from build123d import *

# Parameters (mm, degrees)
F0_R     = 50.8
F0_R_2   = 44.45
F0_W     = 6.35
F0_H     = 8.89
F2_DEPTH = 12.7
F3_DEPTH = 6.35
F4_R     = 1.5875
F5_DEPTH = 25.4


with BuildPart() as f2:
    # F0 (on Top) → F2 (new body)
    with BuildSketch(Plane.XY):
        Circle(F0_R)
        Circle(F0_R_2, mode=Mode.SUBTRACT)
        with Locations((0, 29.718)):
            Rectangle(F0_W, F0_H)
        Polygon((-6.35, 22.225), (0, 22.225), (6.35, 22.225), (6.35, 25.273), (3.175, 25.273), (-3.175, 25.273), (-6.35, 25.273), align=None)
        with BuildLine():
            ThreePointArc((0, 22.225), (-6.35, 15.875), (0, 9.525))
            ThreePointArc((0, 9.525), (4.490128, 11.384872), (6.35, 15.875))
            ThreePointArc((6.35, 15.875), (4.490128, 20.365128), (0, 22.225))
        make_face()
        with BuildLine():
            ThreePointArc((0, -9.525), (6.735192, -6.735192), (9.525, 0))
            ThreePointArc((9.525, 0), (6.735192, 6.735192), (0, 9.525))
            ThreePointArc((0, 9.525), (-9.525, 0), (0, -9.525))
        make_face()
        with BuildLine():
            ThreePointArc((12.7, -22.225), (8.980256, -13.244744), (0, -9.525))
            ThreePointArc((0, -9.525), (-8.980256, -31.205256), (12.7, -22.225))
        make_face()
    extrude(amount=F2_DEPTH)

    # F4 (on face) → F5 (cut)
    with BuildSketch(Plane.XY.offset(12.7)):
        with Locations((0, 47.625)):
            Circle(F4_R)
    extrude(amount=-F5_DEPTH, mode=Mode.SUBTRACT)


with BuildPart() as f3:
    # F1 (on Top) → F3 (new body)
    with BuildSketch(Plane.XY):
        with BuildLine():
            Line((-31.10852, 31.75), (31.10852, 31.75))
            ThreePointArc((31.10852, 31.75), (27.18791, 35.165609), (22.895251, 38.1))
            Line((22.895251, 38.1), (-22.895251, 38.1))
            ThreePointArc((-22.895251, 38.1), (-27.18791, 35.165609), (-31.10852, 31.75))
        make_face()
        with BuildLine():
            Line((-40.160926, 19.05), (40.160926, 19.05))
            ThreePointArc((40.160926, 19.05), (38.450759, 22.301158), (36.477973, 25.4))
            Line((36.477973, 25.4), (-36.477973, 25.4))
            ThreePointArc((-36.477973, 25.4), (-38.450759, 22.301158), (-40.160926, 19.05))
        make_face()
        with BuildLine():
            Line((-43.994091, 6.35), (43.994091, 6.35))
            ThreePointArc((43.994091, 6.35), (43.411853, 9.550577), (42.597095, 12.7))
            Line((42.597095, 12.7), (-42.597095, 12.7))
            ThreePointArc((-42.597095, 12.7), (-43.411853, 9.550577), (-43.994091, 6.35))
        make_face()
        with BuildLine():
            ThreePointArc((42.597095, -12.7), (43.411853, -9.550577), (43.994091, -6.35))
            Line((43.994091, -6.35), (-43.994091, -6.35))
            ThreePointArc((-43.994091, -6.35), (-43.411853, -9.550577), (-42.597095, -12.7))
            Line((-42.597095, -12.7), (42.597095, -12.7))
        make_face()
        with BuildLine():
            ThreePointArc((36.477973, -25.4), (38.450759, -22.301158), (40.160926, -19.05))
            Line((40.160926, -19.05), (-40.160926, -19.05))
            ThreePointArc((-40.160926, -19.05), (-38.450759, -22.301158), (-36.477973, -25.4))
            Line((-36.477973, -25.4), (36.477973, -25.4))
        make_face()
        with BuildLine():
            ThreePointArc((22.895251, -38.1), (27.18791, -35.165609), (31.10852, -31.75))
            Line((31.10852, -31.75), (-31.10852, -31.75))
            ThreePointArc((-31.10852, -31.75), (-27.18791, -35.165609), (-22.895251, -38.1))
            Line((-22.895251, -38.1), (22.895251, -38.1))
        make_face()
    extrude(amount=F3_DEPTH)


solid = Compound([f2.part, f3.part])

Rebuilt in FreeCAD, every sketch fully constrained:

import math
import FreeCAD as App
import Part
import Sketcher
from FreeCAD import Vector
Q = App.Units.Quantity


def add_polygon(sketch, points):
    """Adds a closed chain of lines whose ends are joined by coincident constraints."""
    first, n = sketch.GeometryCount, len(points)
    for a, b in zip(points, points[1:] + points[:1]):
        sketch.addGeometry(Part.LineSegment(App.Vector(*a, 0), App.Vector(*b, 0)), False)
    for i in range(n):
        sketch.addConstraint(Sketcher.Constraint("Coincident", first + i, 2, first + (i + 1) % n, 1))

doc = App.newDocument("Part")
body = doc.addObject("PartDesign::Body", "Body")
body.AllowCompound = True

sketch1 = body.newObject("Sketcher::SketchObject", "Sketch")
sketch1.AttachmentSupport = (doc.getObject("XY_Plane"), [""])
sketch1.MapMode = "FlatFace"
sketch1.addGeometry(Part.Circle(Vector(0, 0, 0), Vector(0, 0, 1), 50.8), False)
sketch1.addGeometry(Part.Circle(Vector(0, 0, 0), Vector(0, 0, 1), 44.45), False)
add_polygon(sketch1, [(-3.175, 34.163), (-3.175, 25.273), (-6.35, 25.273), (-6.35, 22.225), (0, 22.225), (6.35, 22.225), (6.35, 25.273), (3.175, 25.273), (3.175, 34.163)])
sketch1.addGeometry(Part.ArcOfCircle(Part.Circle(Vector(0, 15.875, 0), Vector(0, 0, 1), 6.35), math.radians(90), math.radians(270)), False)
sketch1.addGeometry(Part.ArcOfCircle(Part.Circle(Vector(0, 15.875, 0), Vector(0, 0, 1), 6.35), math.radians(-89.999998), math.radians(-0.000002)), False)
sketch1.addGeometry(Part.ArcOfCircle(Part.Circle(Vector(0, 15.875, 0), Vector(0, 0, 1), 6.35), math.radians(0.000002), math.radians(89.999998)), False)
sketch1.addGeometry(Part.ArcOfCircle(Part.Circle(Vector(0, 0, 0), Vector(0, 0, 1), 9.525), math.radians(-89.999998), math.radians(-0.000002)), False)
sketch1.addGeometry(Part.ArcOfCircle(Part.Circle(Vector(0, 0, 0), Vector(0, 0, 1), 9.525), math.radians(0.000002), math.radians(89.999998)), False)
sketch1.addGeometry(Part.ArcOfCircle(Part.Circle(Vector(0, 0, 0), Vector(0, 0, 1), 9.525), math.radians(90), math.radians(270)), False)
sketch1.addGeometry(Part.ArcOfCircle(Part.Circle(Vector(0, -22.225, 0), Vector(0, 0, 1), 12.7), math.radians(0.000002), math.radians(89.999998)), False)
sketch1.addGeometry(Part.ArcOfCircle(Part.Circle(Vector(0, -22.225, 0), Vector(0, 0, 1), 12.7), math.radians(90), math.radians(360)), False)
sketch1.addConstraint([
    Sketcher.Constraint("Tangent", 11, 2, 12, 1),
    Sketcher.Constraint("Tangent", 12, 2, 13, 1),
    Sketcher.Constraint("Tangent", 13, 2, 11, 1),
    Sketcher.Constraint("Tangent", 14, 2, 15, 1),
    Sketcher.Constraint("Tangent", 15, 2, 16, 1),
    Sketcher.Constraint("Tangent", 16, 2, 14, 1),
    Sketcher.Constraint("Tangent", 17, 1, 18, 2),
    Sketcher.Constraint("Coincident", 18, 1, 17, 2),
    Sketcher.Constraint("Vertical", 2),
    Sketcher.Constraint("Horizontal", 3),
    Sketcher.Constraint("Vertical", 4),
    Sketcher.Constraint("Horizontal", 5),
    Sketcher.Constraint("Horizontal", 6),
    Sketcher.Constraint("Vertical", 7),
    Sketcher.Constraint("Horizontal", 8),
    Sketcher.Constraint("Vertical", 9),
    Sketcher.Constraint("Horizontal", 10),
    Sketcher.Constraint("Coincident", 0, 3, -1, 1),
    Sketcher.Constraint("Coincident", 1, 3, -1, 1),
    Sketcher.Constraint("Coincident", 14, 3, -1, 1),
    Sketcher.Constraint("Coincident", 13, 2, 5, 2),
    Sketcher.Constraint("Coincident", 15, 2, 11, 2),
    Sketcher.Constraint("Coincident", 18, 1, 16, 2),
    Sketcher.Constraint("Symmetric", 3, 2, 7, 2, -2),
    Sketcher.Constraint("PointOnObject", 11, 3, -2),
    Sketcher.Constraint("PointOnObject", 17, 3, -2),
    Sketcher.Constraint("PointOnObject", 5, 2, -2),
    Sketcher.Constraint("PointOnObject", 11, 2, -2),
    Sketcher.Constraint("PointOnObject", 14, 2, -1),
    Sketcher.Constraint("PointOnObject", 16, 2, -2),
    Sketcher.Constraint("Horizontal", 13, 3, 12, 2),
    Sketcher.Constraint("Horizontal", 18, 3, 17, 1),
    Sketcher.Constraint("Vertical", 7, 2, 12, 2),
    Sketcher.Constraint("Equal", 3, 8),
    Sketcher.Constraint("Equal", 6, 10),
    Sketcher.Constraint("Diameter", 0, Q("4 in")),
    Sketcher.Constraint("Diameter", 1, Q("3.5 in")),
    Sketcher.Constraint("Radius", 17, Q("0.5 in")),
    Sketcher.Constraint("Radius", 11, Q("0.25 in")),
    Sketcher.Constraint("Radius", 14, Q("0.375 in")),
    Sketcher.Constraint("DistanceY", 2, 2, 2, 1, Q("0.35 in")),
    Sketcher.Constraint("DistanceY", 4, 2, 4, 1, Q("0.12 in")),
])
pad1 = body.newObject("PartDesign::Pad", "Pad")
pad1.Profile = sketch1
pad1.Length = Q("0.5 in")

sketch2 = body.newObject("Sketcher::SketchObject", "Sketch001")
sketch2.AttachmentSupport = (doc.getObject("XY_Plane"), [""])
sketch2.MapMode = "FlatFace"
sketch2.AttachmentOffset = App.Placement(Vector(0, 0, 0.5 * 25.4), App.Rotation())
sketch2.addGeometry(Part.Circle(Vector(0, 47.625, 0), Vector(0, 0, 1), 1.5875), False)
sketch2.addConstraint([
    Sketcher.Constraint("PointOnObject", 0, 3, -2),
    Sketcher.Constraint("Diameter", 0, Q("0.125 in")),
    Sketcher.Constraint("DistanceY", -1, 1, 0, 3, Q("1.875 in")),
])
pocket1 = body.newObject("PartDesign::Pocket", "Pocket")
pocket1.Profile = sketch2
pocket1.Length = Q("1 in")
body2 = doc.addObject("PartDesign::Body", "Body001")
body2.AllowCompound = True

sketch3 = body2.newObject("Sketcher::SketchObject", "Sketch002")
sketch3.AttachmentSupport = (doc.getObject("XY_Plane001"), [""])
sketch3.MapMode = "FlatFace"
sketch3.addGeometry([
    Part.LineSegment(Vector(-31.10852, 31.75, 0), Vector(31.10852, 31.75, 0)),
    Part.ArcOfCircle(Part.Circle(Vector(-0.000011, -0.000014, 0), Vector(0, 0, 1), 44.450018), math.radians(45.584694), math.radians(58.997278)),
    Part.LineSegment(Vector(22.895251, 38.1, 0), Vector(-22.895251, 38.1, 0)),
    Part.ArcOfCircle(Part.Circle(Vector(0.000011, -0.000014, 0), Vector(0, 0, 1), 44.450018), math.radians(121.002722), math.radians(134.415306)),
    Part.LineSegment(Vector(-40.160926, 19.05, 0), Vector(40.160926, 19.05, 0)),
    Part.ArcOfCircle(Part.Circle(Vector(0.000056, 0.000035, 0), Vector(0, 0, 1), 44.449934), math.radians(25.376923), math.radians(34.849908)),
    Part.LineSegment(Vector(36.477973, 25.4, 0), Vector(-36.477973, 25.4, 0)),
    Part.ArcOfCircle(Part.Circle(Vector(-0.000056, 0.000035, 0), Vector(0, 0, 1), 44.449934), math.radians(145.150092), math.radians(154.623077)),
    Part.LineSegment(Vector(-43.994091, 6.35, 0), Vector(43.994091, 6.35, 0)),
    Part.ArcOfCircle(Part.Circle(Vector(-0.000084, -0.000022, 0), Vector(0, 0, 1), 44.450087), math.radians(8.213223), math.radians(16.601545)),
    Part.LineSegment(Vector(42.597095, 12.7, 0), Vector(-42.597095, 12.7, 0)),
    Part.ArcOfCircle(Part.Circle(Vector(0.000084, -0.000022, 0), Vector(0, 0, 1), 44.450087), math.radians(163.398455), math.radians(171.786777)),
    Part.ArcOfCircle(Part.Circle(Vector(-0.000084, 0.000022, 0), Vector(0, 0, 1), 44.450087), math.radians(-16.601545), math.radians(-8.213223)),
    Part.LineSegment(Vector(43.994091, -6.35, 0), Vector(-43.994091, -6.35, 0)),
    Part.ArcOfCircle(Part.Circle(Vector(0.000084, 0.000022, 0), Vector(0, 0, 1), 44.450087), math.radians(-171.786777), math.radians(-163.398455)),
    Part.LineSegment(Vector(-42.597095, -12.7, 0), Vector(42.597095, -12.7, 0)),
    Part.ArcOfCircle(Part.Circle(Vector(0.000056, -0.000035, 0), Vector(0, 0, 1), 44.449934), math.radians(-34.849908), math.radians(-25.376923)),
    Part.LineSegment(Vector(40.160926, -19.05, 0), Vector(-40.160926, -19.05, 0)),
    Part.ArcOfCircle(Part.Circle(Vector(-0.000056, -0.000035, 0), Vector(0, 0, 1), 44.449934), math.radians(-154.623077), math.radians(-145.150092)),
    Part.LineSegment(Vector(-36.477973, -25.4, 0), Vector(36.477973, -25.4, 0)),
    Part.ArcOfCircle(Part.Circle(Vector(-0.000011, 0.000014, 0), Vector(0, 0, 1), 44.450018), math.radians(-58.997278), math.radians(-45.584694)),
    Part.LineSegment(Vector(31.10852, -31.75, 0), Vector(-31.10852, -31.75, 0)),
    Part.ArcOfCircle(Part.Circle(Vector(0.000011, 0.000014, 0), Vector(0, 0, 1), 44.450018), math.radians(-134.415306), math.radians(-121.002722)),
    Part.LineSegment(Vector(-22.895251, -38.1, 0), Vector(22.895251, -38.1, 0)),
], False)
sketch3.addConstraint([
    Sketcher.Constraint("Coincident", 0, 2, 1, 1),
    Sketcher.Constraint("Coincident", 1, 2, 2, 1),
    Sketcher.Constraint("Coincident", 2, 2, 3, 1),
    Sketcher.Constraint("Coincident", 3, 2, 0, 1),
    Sketcher.Constraint("Coincident", 4, 2, 5, 1),
    Sketcher.Constraint("Coincident", 5, 2, 6, 1),
    Sketcher.Constraint("Coincident", 6, 2, 7, 1),
    Sketcher.Constraint("Coincident", 7, 2, 4, 1),
    Sketcher.Constraint("Coincident", 8, 2, 9, 1),
    Sketcher.Constraint("Coincident", 9, 2, 10, 1),
    Sketcher.Constraint("Coincident", 10, 2, 11, 1),
    Sketcher.Constraint("Coincident", 11, 2, 8, 1),
    Sketcher.Constraint("Coincident", 12, 2, 13, 1),
    Sketcher.Constraint("Coincident", 13, 2, 14, 1),
    Sketcher.Constraint("Coincident", 14, 2, 15, 1),
    Sketcher.Constraint("Coincident", 15, 2, 12, 1),
    Sketcher.Constraint("Coincident", 16, 2, 17, 1),
    Sketcher.Constraint("Coincident", 17, 2, 18, 1),
    Sketcher.Constraint("Coincident", 18, 2, 19, 1),
    Sketcher.Constraint("Coincident", 19, 2, 16, 1),
    Sketcher.Constraint("Coincident", 20, 2, 21, 1),
    Sketcher.Constraint("Coincident", 21, 2, 22, 1),
    Sketcher.Constraint("Coincident", 22, 2, 23, 1),
    Sketcher.Constraint("Coincident", 23, 2, 20, 1),
    Sketcher.Constraint("Horizontal", 0),
    Sketcher.Constraint("Horizontal", 2),
    Sketcher.Constraint("Horizontal", 4),
    Sketcher.Constraint("Horizontal", 6),
    Sketcher.Constraint("Horizontal", 8),
    Sketcher.Constraint("Horizontal", 10),
    Sketcher.Constraint("Horizontal", 13),
    Sketcher.Constraint("Horizontal", 15),
    Sketcher.Constraint("Horizontal", 17),
    Sketcher.Constraint("Horizontal", 19),
    Sketcher.Constraint("Horizontal", 21),
    Sketcher.Constraint("Horizontal", 23),
    Sketcher.Constraint("Equal", 1, 3),
    Sketcher.Constraint("Equal", 5, 7),
    Sketcher.Constraint("Equal", 9, 11),
    Sketcher.Constraint("Equal", 11, 12),
    Sketcher.Constraint("Equal", 12, 14),
    Sketcher.Constraint("Equal", 7, 16),
    Sketcher.Constraint("Equal", 16, 18),
    Sketcher.Constraint("Equal", 3, 20),
    Sketcher.Constraint("Equal", 20, 22),
    Sketcher.Constraint("Symmetric", 11, 3, 12, 3, -1, 1),
    Sketcher.Constraint("Symmetric", 9, 3, 14, 3, -1, 1),
    Sketcher.Constraint("Symmetric", 7, 3, 16, 3, -1, 1),
    Sketcher.Constraint("Symmetric", 5, 3, 18, 3, -1, 1),
    Sketcher.Constraint("Symmetric", 3, 3, 20, 3, -1, 1),
    Sketcher.Constraint("Symmetric", 1, 3, 22, 3, -1, 1),
    Sketcher.Constraint("Symmetric", 1, 3, 3, 3, -2),
    Sketcher.Constraint("Symmetric", 5, 3, 7, 3, -2),
    Sketcher.Constraint("Symmetric", 9, 3, 11, 3, -2),
    Sketcher.Constraint("Vertical", 8, 2, 12, 2),
    Sketcher.Constraint("Vertical", 10, 2, 14, 2),
    Sketcher.Constraint("Vertical", 4, 2, 16, 2),
    Sketcher.Constraint("Vertical", 6, 2, 18, 2),
    Sketcher.Constraint("Vertical", 0, 2, 20, 2),
    Sketcher.Constraint("Vertical", 2, 2, 22, 2),
    Sketcher.Constraint("DistanceY", -1, 1, 5, 2, Q("1 in")),
    Sketcher.Constraint("DistanceY", 8, 2, 0, 2, Q("1 in")),
    Sketcher.Constraint("DistanceY", 9, 2, 1, 2, Q("1 in")),
    Sketcher.Constraint("DistanceY", 12, 2, 4, 2, Q("1 in")),
    Sketcher.Constraint("DistanceY", 14, 2, 10, 2, Q("1 in")),
    Sketcher.Constraint("DistanceY", 4, 2, 0, 2, Q("0.5 in")),
    Sketcher.Constraint("Radius", 1, 44.450018),
    Sketcher.Constraint("DistanceX", 9, 2, 8, 2, Q("0.0549998 in")),
    Sketcher.Constraint("DistanceX", 2, 2, 2, 1, 45.790502),
    Sketcher.Constraint("Radius", 5, 44.449934),
    Sketcher.Constraint("Radius", 9, 44.450087),
    Sketcher.Constraint("DistanceX", 0, 1, 0, 2, 62.21704),
    Sketcher.Constraint("DistanceX", 8, 1, 8, 2, 87.988182),
    Sketcher.Constraint("DistanceX", 4, 1, 4, 2, 80.321852),
    Sketcher.Constraint("DistanceX", 6, 2, 6, 1, 72.955946),
])
pad2 = body2.newObject("PartDesign::Pad", "Pad001")
pad2.Profile = sketch3
pad2.Length = Q("0.25 in")

doc.recompute()
